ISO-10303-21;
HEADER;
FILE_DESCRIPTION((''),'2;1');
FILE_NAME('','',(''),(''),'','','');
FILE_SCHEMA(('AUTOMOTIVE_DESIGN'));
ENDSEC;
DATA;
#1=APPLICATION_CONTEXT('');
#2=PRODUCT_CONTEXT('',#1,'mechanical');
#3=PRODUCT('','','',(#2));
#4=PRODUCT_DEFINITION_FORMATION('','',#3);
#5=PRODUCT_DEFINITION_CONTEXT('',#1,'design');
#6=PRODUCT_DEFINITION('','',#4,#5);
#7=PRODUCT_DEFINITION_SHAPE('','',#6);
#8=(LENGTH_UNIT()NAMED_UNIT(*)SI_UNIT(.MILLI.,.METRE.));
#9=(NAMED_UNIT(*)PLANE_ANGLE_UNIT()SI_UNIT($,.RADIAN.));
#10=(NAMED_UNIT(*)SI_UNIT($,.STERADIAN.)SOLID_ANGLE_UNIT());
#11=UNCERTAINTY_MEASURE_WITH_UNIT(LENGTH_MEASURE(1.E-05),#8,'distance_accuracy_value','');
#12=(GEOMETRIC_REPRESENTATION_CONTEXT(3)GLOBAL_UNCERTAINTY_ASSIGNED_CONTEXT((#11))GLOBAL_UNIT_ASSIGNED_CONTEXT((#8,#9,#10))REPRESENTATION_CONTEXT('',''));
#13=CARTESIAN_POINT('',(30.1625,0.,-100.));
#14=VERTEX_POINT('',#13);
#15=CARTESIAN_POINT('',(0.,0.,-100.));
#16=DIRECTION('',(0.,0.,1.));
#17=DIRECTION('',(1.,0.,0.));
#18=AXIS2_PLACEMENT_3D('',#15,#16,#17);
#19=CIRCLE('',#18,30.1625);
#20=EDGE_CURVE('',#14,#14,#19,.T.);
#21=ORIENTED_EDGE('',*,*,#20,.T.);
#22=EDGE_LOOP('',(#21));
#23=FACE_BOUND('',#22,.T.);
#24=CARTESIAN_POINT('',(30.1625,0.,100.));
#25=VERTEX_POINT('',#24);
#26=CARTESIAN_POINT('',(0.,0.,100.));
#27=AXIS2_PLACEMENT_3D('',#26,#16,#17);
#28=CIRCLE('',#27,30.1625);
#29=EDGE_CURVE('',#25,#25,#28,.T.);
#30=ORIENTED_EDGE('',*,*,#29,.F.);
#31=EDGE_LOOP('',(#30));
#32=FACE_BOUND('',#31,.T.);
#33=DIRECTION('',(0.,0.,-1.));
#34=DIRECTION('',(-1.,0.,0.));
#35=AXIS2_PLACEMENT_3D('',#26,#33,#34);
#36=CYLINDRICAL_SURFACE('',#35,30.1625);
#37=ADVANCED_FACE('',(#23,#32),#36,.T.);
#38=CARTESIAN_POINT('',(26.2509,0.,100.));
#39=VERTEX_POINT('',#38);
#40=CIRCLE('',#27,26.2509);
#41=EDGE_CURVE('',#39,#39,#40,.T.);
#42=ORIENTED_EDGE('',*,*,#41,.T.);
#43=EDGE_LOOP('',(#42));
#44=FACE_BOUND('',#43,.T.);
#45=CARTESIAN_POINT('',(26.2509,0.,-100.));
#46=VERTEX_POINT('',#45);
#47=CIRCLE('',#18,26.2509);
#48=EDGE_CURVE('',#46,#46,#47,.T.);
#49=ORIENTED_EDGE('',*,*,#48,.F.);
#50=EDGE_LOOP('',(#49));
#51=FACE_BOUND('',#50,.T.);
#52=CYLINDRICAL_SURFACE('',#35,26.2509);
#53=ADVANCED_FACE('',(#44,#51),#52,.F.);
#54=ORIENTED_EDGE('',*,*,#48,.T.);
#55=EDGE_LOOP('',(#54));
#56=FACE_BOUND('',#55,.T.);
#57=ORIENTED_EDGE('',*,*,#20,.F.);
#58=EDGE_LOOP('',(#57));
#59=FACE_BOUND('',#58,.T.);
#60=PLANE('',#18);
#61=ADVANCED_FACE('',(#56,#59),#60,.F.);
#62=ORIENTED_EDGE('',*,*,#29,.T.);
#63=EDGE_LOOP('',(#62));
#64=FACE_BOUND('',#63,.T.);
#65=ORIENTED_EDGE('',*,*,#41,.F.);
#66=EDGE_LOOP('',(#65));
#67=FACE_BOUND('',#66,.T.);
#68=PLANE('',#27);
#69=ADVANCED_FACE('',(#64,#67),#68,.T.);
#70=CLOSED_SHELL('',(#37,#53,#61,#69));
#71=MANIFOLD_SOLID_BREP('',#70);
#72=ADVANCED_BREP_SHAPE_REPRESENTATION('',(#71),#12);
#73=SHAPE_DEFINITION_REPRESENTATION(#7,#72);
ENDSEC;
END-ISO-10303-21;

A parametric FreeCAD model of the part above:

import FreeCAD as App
import Part
import Sketcher
Q = App.Units.Quantity

doc = App.newDocument("Part")
body = doc.addObject("PartDesign::Body", "Body")

sketch1 = body.newObject("Sketcher::SketchObject", "Sketch")
sketch1.AttachmentSupport = (doc.getObject("XY_Plane"), [""])
sketch1.MapMode = "FlatFace"
sketch1.addGeometry([
    Part.Circle(App.Vector(0, 0, 0), App.Vector(0, 0, 1), 30),
    Part.Circle(App.Vector(0, 0, 0), App.Vector(0, 0, 1), 26),
], False)
sketch1.addConstraint([
    Sketcher.Constraint("Coincident", 0, 3, -1, 1),
    Sketcher.Constraint("Coincident", 1, 3, -1, 1),
    Sketcher.Constraint("Diameter", 0, Q("2.375 in")),
    Sketcher.Constraint("Diameter", 1, Q("2.067 in")),
])
pad1 = body.newObject("PartDesign::Pad", "Pad")
pad1.Profile = sketch1
pad1.Length = 200
pad1.Midplane = True

doc.recompute()
